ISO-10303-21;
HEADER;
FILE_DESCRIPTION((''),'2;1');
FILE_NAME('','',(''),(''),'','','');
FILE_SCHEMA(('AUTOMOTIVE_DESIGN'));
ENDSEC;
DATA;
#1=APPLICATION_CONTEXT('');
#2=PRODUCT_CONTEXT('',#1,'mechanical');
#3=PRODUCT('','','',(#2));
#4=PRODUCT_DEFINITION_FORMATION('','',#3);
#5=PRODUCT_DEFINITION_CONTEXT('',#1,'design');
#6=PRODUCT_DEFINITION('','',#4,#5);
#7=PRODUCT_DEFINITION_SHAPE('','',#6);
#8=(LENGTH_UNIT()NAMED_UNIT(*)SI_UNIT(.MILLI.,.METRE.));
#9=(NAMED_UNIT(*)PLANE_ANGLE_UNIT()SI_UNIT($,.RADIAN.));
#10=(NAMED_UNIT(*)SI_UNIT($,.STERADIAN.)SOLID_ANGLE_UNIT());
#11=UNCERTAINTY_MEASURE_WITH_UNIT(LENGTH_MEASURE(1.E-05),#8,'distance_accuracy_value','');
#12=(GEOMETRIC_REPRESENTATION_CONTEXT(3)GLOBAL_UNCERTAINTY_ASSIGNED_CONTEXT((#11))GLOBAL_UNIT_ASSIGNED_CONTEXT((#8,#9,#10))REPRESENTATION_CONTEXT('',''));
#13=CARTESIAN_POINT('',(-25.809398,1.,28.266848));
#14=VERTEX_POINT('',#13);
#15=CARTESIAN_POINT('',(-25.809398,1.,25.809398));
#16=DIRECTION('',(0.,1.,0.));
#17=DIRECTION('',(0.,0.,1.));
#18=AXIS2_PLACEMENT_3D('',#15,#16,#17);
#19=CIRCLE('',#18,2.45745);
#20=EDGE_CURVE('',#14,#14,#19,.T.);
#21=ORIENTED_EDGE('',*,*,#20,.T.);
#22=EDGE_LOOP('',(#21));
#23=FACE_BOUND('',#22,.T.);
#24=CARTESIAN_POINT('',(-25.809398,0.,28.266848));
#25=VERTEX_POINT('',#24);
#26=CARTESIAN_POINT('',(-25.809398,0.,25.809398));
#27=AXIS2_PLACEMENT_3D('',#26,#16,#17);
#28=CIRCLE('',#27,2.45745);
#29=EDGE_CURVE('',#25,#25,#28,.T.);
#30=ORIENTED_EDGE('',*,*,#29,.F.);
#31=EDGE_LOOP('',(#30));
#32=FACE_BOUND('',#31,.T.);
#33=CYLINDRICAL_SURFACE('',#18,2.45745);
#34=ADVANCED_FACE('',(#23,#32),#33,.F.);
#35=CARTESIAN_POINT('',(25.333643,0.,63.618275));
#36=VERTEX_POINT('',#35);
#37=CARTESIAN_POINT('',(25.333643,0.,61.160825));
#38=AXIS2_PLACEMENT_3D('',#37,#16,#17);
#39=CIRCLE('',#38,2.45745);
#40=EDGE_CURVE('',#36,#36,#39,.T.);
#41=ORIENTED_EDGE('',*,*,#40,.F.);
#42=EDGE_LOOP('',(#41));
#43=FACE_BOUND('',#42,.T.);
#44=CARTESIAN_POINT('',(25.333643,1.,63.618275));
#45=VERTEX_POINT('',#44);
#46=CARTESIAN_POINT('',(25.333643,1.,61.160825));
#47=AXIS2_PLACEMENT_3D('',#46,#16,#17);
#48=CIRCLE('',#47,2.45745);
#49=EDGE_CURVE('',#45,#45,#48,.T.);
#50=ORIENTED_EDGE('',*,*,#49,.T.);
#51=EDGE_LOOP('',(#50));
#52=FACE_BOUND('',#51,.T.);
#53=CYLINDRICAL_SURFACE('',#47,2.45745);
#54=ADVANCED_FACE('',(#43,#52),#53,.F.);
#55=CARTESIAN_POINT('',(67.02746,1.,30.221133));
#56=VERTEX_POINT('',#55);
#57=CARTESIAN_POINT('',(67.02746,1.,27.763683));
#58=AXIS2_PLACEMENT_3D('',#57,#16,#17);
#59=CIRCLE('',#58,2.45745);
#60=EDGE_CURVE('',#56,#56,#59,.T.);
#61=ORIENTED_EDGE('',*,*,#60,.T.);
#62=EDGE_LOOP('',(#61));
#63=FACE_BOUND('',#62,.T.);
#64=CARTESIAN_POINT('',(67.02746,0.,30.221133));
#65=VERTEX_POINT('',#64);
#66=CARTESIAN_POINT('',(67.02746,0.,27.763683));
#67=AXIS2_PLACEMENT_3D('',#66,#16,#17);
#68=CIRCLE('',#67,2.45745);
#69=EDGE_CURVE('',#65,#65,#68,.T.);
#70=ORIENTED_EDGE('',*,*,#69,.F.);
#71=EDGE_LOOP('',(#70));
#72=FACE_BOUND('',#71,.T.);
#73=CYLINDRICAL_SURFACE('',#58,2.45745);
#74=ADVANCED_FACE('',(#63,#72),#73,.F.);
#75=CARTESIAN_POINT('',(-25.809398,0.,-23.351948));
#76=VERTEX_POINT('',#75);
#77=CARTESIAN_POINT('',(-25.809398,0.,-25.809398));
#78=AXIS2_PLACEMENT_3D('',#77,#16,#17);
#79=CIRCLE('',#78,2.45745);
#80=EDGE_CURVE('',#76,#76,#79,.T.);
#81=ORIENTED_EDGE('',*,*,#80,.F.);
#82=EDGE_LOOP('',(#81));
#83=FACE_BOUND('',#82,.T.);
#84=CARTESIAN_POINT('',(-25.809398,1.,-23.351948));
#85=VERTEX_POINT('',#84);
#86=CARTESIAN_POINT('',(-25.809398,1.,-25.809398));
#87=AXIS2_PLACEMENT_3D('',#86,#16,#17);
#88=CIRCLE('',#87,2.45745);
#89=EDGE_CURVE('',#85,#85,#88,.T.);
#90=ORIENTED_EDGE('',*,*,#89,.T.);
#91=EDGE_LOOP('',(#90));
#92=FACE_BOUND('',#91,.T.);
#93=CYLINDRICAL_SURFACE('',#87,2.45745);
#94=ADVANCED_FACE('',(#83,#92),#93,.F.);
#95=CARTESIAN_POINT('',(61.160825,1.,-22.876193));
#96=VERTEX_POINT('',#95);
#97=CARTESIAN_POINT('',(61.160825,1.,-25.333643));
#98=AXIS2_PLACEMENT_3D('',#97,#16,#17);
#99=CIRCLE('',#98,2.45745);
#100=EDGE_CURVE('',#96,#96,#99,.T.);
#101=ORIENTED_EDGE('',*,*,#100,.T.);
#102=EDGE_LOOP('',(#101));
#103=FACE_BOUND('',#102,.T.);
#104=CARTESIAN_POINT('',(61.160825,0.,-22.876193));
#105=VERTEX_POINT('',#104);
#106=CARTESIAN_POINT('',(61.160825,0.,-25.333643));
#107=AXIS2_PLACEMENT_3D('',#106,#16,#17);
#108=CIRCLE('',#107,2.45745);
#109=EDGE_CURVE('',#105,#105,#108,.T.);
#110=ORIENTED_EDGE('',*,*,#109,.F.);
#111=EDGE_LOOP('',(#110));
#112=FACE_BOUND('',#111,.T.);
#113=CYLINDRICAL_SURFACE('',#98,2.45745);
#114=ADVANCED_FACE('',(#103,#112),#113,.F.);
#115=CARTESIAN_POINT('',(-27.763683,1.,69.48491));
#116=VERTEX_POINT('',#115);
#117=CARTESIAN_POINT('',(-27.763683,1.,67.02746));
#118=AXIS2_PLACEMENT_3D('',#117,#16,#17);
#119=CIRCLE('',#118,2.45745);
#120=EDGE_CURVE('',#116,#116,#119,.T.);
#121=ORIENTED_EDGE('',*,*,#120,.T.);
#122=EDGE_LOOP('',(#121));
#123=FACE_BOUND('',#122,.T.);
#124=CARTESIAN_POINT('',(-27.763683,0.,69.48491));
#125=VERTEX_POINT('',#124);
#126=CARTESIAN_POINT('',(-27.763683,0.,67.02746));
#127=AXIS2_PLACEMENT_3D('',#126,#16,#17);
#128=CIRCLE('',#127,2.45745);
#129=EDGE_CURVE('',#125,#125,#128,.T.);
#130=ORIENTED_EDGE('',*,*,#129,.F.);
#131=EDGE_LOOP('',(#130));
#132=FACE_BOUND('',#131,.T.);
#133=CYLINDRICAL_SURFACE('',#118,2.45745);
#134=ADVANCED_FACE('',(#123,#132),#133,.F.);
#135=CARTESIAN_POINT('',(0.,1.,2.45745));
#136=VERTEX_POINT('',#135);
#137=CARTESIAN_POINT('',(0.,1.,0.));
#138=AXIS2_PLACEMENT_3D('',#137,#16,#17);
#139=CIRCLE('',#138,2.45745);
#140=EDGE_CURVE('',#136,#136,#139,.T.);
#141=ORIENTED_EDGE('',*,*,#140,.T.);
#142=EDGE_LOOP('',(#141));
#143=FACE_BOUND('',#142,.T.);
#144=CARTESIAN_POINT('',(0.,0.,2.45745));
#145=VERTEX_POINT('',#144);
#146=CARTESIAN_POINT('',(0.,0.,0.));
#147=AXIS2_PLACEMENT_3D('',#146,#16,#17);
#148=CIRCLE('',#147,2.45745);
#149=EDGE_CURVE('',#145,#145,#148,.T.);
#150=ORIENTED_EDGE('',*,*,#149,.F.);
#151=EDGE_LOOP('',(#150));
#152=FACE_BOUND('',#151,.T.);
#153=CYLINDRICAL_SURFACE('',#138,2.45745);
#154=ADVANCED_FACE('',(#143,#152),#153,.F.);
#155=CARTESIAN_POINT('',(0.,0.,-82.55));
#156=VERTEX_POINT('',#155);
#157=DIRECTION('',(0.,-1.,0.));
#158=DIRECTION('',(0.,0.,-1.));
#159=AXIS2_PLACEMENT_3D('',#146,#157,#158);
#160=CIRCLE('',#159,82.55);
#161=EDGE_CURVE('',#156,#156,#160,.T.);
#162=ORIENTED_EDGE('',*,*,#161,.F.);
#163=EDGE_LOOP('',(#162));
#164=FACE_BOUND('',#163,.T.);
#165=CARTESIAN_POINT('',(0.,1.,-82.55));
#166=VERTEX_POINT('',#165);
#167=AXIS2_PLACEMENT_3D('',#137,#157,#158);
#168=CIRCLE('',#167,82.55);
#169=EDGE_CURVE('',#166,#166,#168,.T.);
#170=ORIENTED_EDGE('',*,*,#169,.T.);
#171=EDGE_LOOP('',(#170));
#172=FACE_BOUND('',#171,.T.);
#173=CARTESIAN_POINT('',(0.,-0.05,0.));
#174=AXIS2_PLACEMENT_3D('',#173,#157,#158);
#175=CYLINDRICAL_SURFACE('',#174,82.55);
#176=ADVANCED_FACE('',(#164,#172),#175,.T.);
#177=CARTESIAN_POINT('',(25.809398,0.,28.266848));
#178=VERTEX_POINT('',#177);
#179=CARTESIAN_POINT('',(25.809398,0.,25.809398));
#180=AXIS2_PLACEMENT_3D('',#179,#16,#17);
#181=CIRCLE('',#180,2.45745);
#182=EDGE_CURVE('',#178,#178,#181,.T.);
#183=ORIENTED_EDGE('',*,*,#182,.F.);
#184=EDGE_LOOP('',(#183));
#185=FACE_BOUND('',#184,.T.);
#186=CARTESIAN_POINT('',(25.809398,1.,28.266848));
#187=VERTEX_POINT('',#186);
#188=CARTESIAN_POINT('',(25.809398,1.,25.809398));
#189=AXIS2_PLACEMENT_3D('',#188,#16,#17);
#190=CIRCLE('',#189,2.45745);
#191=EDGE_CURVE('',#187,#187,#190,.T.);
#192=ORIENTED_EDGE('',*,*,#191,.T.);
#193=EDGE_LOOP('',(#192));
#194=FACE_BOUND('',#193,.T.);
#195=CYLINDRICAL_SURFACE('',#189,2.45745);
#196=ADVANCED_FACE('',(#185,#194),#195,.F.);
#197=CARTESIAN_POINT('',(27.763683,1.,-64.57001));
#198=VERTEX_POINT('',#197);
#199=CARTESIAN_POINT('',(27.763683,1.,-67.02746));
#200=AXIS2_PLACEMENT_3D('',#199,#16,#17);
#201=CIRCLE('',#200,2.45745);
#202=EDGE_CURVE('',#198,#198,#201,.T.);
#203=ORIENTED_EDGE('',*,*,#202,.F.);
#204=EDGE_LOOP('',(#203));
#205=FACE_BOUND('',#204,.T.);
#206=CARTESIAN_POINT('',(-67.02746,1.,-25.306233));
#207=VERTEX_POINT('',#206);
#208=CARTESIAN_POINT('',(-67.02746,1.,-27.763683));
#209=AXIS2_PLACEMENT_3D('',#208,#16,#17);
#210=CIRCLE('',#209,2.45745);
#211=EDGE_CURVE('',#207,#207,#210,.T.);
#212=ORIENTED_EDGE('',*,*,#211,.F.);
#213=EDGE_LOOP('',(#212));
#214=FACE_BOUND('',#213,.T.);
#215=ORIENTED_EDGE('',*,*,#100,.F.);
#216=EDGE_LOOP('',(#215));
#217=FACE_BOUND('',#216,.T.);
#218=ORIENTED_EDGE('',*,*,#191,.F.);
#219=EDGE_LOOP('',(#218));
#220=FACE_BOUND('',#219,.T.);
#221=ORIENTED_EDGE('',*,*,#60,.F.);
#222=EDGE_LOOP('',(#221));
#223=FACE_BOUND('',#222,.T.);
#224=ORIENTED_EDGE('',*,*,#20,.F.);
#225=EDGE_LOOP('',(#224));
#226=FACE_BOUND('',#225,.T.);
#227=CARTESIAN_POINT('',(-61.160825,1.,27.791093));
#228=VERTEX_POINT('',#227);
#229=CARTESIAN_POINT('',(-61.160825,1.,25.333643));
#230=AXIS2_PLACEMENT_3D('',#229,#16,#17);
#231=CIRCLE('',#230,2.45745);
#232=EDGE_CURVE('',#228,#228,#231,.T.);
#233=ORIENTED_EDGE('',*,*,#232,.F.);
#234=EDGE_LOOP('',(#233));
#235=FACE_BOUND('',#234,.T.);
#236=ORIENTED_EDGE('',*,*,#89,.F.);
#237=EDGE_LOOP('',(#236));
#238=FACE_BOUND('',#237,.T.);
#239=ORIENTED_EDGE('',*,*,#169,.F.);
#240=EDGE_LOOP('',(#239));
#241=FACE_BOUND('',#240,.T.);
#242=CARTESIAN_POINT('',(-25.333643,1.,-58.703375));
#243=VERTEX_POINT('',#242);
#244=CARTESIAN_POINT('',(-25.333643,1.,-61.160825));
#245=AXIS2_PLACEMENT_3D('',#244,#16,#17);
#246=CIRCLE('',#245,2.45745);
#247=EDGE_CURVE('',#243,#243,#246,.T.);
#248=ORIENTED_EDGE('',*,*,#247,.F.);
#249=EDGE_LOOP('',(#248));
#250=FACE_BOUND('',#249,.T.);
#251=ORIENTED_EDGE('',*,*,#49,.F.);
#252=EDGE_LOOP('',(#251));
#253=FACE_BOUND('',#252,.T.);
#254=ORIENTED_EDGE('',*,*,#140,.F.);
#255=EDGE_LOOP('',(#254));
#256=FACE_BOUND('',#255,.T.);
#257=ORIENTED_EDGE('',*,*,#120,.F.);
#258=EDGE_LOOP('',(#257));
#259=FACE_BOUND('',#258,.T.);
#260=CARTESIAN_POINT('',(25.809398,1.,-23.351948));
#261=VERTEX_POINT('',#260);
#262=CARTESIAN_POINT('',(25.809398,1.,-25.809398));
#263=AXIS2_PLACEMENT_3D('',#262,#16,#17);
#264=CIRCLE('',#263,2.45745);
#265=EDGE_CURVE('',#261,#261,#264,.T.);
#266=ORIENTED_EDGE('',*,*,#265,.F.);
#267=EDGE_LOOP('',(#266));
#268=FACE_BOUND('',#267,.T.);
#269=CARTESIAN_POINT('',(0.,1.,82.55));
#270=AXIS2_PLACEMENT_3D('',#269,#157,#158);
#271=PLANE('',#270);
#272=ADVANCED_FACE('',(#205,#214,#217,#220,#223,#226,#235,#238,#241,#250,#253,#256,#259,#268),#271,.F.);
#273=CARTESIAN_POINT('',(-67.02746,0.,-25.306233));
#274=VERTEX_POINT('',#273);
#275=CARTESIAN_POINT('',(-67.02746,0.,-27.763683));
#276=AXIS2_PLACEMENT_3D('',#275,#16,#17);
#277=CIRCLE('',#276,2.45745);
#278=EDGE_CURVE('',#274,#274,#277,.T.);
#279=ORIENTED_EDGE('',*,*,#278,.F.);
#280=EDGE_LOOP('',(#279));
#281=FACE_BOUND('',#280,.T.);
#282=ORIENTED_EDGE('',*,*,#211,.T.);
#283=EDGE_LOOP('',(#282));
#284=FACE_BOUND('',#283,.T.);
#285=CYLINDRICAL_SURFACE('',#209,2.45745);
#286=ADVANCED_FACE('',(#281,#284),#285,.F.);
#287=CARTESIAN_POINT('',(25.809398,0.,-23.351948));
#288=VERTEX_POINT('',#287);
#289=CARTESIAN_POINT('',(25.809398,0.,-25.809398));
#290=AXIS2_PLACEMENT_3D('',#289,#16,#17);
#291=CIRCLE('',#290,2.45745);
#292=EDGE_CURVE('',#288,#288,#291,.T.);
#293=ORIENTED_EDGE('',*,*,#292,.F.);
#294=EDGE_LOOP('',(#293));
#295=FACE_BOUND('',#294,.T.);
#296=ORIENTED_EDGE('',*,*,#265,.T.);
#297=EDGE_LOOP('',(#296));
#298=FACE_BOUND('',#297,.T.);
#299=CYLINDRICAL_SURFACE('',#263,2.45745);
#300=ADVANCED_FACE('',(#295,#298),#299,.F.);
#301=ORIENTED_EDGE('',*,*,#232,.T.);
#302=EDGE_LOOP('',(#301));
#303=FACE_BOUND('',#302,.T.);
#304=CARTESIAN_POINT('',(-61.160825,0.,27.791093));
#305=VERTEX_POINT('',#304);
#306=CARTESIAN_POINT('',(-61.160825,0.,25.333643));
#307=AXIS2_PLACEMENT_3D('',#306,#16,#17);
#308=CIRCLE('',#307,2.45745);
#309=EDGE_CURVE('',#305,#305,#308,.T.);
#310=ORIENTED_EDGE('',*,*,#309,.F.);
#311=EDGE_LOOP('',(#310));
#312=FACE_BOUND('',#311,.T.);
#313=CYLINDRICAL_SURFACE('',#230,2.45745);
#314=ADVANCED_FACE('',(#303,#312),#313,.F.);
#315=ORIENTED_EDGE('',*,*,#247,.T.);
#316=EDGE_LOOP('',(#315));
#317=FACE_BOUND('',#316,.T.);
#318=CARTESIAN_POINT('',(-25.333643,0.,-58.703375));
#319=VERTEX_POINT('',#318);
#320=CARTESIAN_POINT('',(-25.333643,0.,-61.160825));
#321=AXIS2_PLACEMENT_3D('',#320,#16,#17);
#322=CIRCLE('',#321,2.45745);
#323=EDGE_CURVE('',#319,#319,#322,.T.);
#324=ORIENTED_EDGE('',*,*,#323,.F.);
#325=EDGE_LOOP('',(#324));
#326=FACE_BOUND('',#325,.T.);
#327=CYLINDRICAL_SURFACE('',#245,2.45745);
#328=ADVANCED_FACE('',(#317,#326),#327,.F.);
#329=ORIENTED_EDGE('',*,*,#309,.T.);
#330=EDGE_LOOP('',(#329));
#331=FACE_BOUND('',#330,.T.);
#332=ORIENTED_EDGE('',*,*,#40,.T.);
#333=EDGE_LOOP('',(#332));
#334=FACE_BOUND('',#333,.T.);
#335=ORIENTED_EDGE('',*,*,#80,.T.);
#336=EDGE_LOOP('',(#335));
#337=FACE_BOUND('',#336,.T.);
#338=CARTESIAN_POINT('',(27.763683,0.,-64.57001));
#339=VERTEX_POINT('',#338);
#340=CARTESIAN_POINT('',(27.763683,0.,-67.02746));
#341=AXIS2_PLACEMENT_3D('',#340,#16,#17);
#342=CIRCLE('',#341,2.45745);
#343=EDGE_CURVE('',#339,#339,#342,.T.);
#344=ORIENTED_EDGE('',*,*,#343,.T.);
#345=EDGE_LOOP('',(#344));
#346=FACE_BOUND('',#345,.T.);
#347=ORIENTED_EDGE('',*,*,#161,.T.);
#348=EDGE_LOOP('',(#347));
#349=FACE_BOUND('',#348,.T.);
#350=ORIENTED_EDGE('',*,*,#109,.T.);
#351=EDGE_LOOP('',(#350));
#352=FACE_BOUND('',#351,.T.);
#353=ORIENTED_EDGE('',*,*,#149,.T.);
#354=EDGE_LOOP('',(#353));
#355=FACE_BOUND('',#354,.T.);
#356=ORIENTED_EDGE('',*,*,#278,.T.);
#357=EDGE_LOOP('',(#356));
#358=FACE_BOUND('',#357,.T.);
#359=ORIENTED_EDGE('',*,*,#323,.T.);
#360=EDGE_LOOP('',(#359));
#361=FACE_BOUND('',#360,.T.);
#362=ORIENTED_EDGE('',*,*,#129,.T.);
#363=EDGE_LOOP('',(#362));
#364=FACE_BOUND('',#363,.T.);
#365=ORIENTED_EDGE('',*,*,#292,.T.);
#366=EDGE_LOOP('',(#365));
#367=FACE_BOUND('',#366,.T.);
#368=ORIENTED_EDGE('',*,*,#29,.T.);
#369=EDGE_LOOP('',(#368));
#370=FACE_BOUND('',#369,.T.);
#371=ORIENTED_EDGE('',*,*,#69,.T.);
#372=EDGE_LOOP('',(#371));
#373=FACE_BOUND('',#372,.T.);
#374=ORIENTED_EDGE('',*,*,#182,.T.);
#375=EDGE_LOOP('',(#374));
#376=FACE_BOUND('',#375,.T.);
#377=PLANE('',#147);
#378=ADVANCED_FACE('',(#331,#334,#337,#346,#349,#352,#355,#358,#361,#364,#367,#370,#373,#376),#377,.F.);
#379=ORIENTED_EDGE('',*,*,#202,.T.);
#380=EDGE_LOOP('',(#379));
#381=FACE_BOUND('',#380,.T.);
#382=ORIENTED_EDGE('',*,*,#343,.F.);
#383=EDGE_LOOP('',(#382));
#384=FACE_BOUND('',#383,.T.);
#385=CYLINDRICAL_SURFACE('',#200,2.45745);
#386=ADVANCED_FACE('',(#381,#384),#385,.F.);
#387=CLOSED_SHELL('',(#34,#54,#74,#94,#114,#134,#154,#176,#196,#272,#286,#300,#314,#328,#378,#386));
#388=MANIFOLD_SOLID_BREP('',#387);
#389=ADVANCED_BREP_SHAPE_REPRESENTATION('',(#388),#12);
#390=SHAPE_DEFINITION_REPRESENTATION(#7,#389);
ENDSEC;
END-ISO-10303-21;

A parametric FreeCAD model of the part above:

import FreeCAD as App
import Part
import Sketcher


def add_polygon(sketch, points):
    """Adds a closed chain of lines whose ends are joined by coincident constraints."""
    first, n = sketch.GeometryCount, len(points)
    for a, b in zip(points, points[1:] + points[:1]):
        sketch.addGeometry(Part.LineSegment(App.Vector(*a, 0), App.Vector(*b, 0)), False)
    for i in range(n):
        sketch.addConstraint(Sketcher.Constraint("Coincident", first + i, 2, first + (i + 1) % n, 1))

doc = App.newDocument("Part")
params = doc.addObject("Spreadsheet::Sheet", "Params")
for row, (alias, value) in enumerate([
    ("sketch1_width", "1 mm"),
    ("sketch1_height", "82.55 mm"),
    ("revolution_angle", "360 deg"),
    ("hole_diameter", "4.9149 mm"),
    ("hole2_diameter", "4.9149 mm"),
], start=1):
    params.set(f"A{row}", alias)
    params.set(f"B{row}", "=" + value)
    params.setAlias(f"B{row}", alias)

body = doc.addObject("PartDesign::Body", "Body")

sketch1 = body.newObject("Sketcher::SketchObject", "Sketch")
sketch1.AttachmentSupport = (doc.getObject("YZ_Plane"), [""])
sketch1.MapMode = "FlatFace"
add_polygon(sketch1, [(1, 82.5), (0, 82.5), (0, 0), (1, 0)])
sketch1.addConstraint([
    Sketcher.Constraint("Horizontal", 0),
    Sketcher.Constraint("Vertical", 1),
    Sketcher.Constraint("Horizontal", 2),
    Sketcher.Constraint("Vertical", 3),
    Sketcher.Constraint("Coincident", 1, 2, -1, 1),
    Sketcher.Constraint("DistanceX", 0, 2, 0, 1, 1.0),
    Sketcher.Constraint("DistanceY", 1, 2, 1, 1, 82.55),
])
sketch1.setExpression("Constraints[9]", "Params.sketch1_width")
sketch1.setExpression("Constraints[10]", "Params.sketch1_height")
revolution = body.newObject("PartDesign::Revolution", "Revolution")
revolution.Profile = sketch1
revolution.ReferenceAxis = (sketch1, ["H_Axis"])
revolution.setExpression("Angle", "Params.revolution_angle")

sketch2 = body.newObject("Sketcher::SketchObject", "Sketch001")
sketch2.AttachmentSupport = (doc.getObject("XZ_Plane"), [""])
sketch2.MapMode = "FlatFace"
sketch2.AttachmentOffset = App.Placement(App.Vector(0, 0, -1), App.Rotation())
sketch2.addGeometry([
    Part.Circle(App.Vector(-25.3, -61.2, 0), App.Vector(0, 0, 1), 2.5),
    Part.Circle(App.Vector(264.7, -73.8, 0), App.Vector(0, 0, 1), 2.5),
    Part.Circle(App.Vector(-67, -27.8, 0), App.Vector(0, 0, 1), 2.5),
    Part.Circle(App.Vector(-25.8, -25.8, 0), App.Vector(0, 0, 1), 2.5),
], False)
sketch2.addConstraint([
    Sketcher.Constraint("Equal", 0, 1),
    Sketcher.Constraint("Equal", 1, 2),
    Sketcher.Constraint("Equal", 2, 3),
    Sketcher.Constraint("Diameter", 0, 4.9149),
    Sketcher.Constraint("DistanceY", 1, 3, -1, 1, 73.787759),
    Sketcher.Constraint("DistanceX", 2, 3, -1, 1, 67.02746),
    Sketcher.Constraint("DistanceX", 0, 3, 1, 3, 290.077318),
    Sketcher.Constraint("DistanceY", 1, 3, 3, 3, 47.978361),
    Sketcher.Constraint("DistanceX", 0, 3, -1, 1, 25.333643),
    Sketcher.Constraint("DistanceY", 0, 3, -1, 1, 61.160825),
    Sketcher.Constraint("DistanceY", 2, 3, -1, 1, 27.763683),
    Sketcher.Constraint("DistanceX", 3, 3, -1, 1, 25.809398),
])
doc.recompute()
hole = body.newObject("PartDesign::Hole", "Hole")
hole.Profile = sketch2
hole.ThreadType = "None"
hole.setExpression("Diameter", "Params.hole_diameter")
hole.DepthType = "ThroughAll"
hole.Reversed = True
doc.recompute()

polarpattern = body.newObject("PartDesign::PolarPattern", "PolarPattern")
polarpattern.Originals = [hole]
polarpattern.Axis = (doc.getObject("Y_Axis"), [""])
polarpattern.Angle = 360
polarpattern.Occurrences = 4
body.Tip = polarpattern

sketch3 = body.newObject("Sketcher::SketchObject", "Sketch002")
sketch3.AttachmentSupport = (doc.getObject("XZ_Plane"), [""])
sketch3.MapMode = "FlatFace"
sketch3.AttachmentOffset = App.Placement(App.Vector(0, 0, -1), App.Rotation())
sketch3.addGeometry(Part.Circle(App.Vector(0, 0, 0), App.Vector(0, 0, 1), 2.5), False)
sketch3.addConstraint([
    Sketcher.Constraint("Coincident", 0, 3, -1, 1),
    Sketcher.Constraint("Diameter", 0, 4.9149),
])
doc.recompute()
hole2 = body.newObject("PartDesign::Hole", "Hole001")
hole2.Profile = sketch3
hole2.ThreadType = "None"
hole2.setExpression("Diameter", "Params.hole2_diameter")
hole2.DepthType = "ThroughAll"
hole2.Reversed = True

doc.recompute()
